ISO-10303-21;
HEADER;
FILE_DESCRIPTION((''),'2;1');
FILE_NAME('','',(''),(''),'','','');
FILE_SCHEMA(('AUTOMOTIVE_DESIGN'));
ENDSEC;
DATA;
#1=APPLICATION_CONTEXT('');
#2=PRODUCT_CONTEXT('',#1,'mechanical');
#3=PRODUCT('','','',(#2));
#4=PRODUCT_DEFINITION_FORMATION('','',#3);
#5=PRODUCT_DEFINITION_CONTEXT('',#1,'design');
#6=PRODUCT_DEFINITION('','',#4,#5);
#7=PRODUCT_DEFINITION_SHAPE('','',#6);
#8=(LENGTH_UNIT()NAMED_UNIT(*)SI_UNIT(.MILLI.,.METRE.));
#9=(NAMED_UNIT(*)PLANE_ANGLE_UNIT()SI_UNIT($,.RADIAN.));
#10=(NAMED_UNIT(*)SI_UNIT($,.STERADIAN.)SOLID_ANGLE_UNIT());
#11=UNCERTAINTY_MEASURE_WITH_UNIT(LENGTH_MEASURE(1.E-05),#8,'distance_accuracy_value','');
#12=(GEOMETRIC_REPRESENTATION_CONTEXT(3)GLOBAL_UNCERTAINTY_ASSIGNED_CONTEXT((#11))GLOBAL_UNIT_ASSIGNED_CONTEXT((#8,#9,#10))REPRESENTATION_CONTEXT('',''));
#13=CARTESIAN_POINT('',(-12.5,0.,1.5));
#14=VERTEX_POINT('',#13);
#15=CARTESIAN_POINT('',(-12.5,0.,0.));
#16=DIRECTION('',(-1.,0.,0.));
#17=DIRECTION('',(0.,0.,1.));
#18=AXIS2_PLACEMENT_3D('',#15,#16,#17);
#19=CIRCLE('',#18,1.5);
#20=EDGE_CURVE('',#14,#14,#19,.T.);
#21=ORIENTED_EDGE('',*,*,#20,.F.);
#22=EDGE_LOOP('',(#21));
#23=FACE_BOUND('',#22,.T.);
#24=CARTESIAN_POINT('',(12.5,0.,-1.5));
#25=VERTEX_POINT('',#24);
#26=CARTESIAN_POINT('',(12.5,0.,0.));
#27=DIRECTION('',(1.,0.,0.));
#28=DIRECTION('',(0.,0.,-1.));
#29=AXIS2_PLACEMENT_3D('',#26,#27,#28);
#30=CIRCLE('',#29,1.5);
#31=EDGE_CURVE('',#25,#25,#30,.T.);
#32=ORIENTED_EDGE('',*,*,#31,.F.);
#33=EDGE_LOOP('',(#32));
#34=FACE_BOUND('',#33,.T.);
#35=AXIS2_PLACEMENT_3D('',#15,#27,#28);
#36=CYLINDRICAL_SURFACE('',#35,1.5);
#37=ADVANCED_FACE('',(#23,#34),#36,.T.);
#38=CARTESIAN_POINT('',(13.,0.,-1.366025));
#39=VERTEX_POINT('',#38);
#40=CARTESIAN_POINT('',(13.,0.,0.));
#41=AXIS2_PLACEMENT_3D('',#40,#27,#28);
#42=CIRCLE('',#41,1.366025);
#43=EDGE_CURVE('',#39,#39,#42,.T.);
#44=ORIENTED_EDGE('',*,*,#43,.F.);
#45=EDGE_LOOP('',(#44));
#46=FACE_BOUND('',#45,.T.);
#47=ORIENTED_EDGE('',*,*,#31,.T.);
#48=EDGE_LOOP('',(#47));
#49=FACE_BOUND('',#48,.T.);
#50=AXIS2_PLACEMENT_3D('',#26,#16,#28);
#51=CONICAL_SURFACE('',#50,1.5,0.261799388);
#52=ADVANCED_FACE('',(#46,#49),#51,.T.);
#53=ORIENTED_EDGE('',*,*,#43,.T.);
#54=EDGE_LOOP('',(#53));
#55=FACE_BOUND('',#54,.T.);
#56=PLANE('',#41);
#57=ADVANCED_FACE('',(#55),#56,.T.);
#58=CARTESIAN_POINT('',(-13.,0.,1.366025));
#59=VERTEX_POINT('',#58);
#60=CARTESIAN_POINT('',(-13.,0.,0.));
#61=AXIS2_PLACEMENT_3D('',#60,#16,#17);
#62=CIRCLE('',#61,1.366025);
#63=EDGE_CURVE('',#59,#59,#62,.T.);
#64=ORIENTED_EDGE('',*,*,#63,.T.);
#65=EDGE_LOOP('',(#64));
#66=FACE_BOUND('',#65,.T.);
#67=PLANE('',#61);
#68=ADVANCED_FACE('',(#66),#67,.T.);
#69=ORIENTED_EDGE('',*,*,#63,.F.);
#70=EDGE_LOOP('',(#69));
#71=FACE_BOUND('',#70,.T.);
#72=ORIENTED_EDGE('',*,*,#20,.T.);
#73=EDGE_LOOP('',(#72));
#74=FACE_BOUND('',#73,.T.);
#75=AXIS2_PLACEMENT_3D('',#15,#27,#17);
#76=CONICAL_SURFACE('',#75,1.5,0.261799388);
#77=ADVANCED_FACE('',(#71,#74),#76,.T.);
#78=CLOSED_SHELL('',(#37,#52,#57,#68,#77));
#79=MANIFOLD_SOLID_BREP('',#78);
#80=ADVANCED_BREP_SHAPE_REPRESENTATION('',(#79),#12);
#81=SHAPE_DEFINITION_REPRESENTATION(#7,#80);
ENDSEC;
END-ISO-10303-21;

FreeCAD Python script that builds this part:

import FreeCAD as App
import Part
import Sketcher

V = App.Vector

doc = App.newDocument("Part")
body = doc.addObject("PartDesign::Body", "Body")

sketch1 = body.newObject("Sketcher::SketchObject", "Sketch")
sketch1.AttachmentSupport = (doc.getObject("YZ_Plane"), [""])
sketch1.MapMode = "FlatFace"
sketch1.addGeometry(Part.Circle(V(0, 0, 0), V(0, 0, 1), 1.5), False)
sketch1.addConstraint([
    Sketcher.Constraint("Coincident", 0, 3, -1, 1),
    Sketcher.Constraint("Diameter", 0, 3.0),
])
pad1 = body.newObject("PartDesign::Pad", "Pad")
pad1.Profile = sketch1
pad1.Type = "TwoLengths"
pad1.Length = 12.5
pad1.Length2 = 12.5

sketch2 = body.newObject("Sketcher::SketchObject", "Sketch001")
sketch2.AttachmentSupport = (doc.getObject("YZ_Plane"), [""])
sketch2.MapMode = "FlatFace"
sketch2.AttachmentOffset = App.Placement(V(0, 0, 12.5), App.Rotation())
sketch2.addGeometry(Part.Circle(V(0, 0, 0), V(0, 0, 1), 1.5), False)
sketch2.addConstraint([
    Sketcher.Constraint("Coincident", 0, 3, -1, 1),
    Sketcher.Constraint("Diameter", 0, 3.0),
])
pad2 = body.newObject("PartDesign::Pad", "Pad001")
pad2.Profile = sketch2
pad2.Length = 0.5
pad2.TaperAngle = -15

sketch3 = body.newObject("Sketcher::SketchObject", "Sketch002")
sketch3.AttachmentSupport = (doc.getObject("YZ_Plane"), [""])
sketch3.MapMode = "FlatFace"
sketch3.AttachmentOffset = App.Placement(V(0, 0, -12.5), App.Rotation())
sketch3.addGeometry(Part.Circle(V(0, 0, 0), V(0, 0, 1), 1.5), False)
sketch3.addConstraint([
    Sketcher.Constraint("Coincident", 0, 3, -1, 1),
    Sketcher.Constraint("Diameter", 0, 3.0),
])
pad3 = body.newObject("PartDesign::Pad", "Pad002")
pad3.Profile = sketch3
pad3.Length = 0.5
pad3.Reversed = True
pad3.TaperAngle = -15

doc.recompute()
